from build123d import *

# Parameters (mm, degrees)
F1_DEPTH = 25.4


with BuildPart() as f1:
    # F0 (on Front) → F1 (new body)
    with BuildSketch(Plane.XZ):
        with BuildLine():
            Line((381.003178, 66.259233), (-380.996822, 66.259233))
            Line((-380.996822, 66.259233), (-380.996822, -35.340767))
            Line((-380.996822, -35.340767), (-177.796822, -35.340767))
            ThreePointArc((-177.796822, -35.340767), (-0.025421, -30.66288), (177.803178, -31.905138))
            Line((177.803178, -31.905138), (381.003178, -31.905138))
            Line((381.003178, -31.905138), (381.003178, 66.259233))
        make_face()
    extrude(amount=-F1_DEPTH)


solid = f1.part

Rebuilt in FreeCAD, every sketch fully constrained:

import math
import FreeCAD as App
import Part
import Sketcher
Q = App.Units.Quantity

doc = App.newDocument("Part")
body = doc.addObject("PartDesign::Body", "Body")

# Sketch on XZ plane
sketch1 = doc.addObject("Sketcher::SketchObject", "Sketch")
body.addObject(sketch1)
sketch1.AttachmentSupport = (doc.XZ_Plane, [""])
sketch1.MapMode = "FlatFace"
sketch1.addGeometry(Part.LineSegment(App.Vector(381, 66, 0), App.Vector(-381, 66, 0)), False)
sketch1.addGeometry(Part.LineSegment(App.Vector(-381, 66, 0), App.Vector(-381, -35, 0)), False)
sketch1.addGeometry(Part.LineSegment(App.Vector(-381, -35, 0), App.Vector(-178, -35, 0)), False)
sketch1.addGeometry(Part.ArcOfCircle(Part.Circle(App.Vector(52, -5372, 0), App.Vector(0, 0, 1), 5342), math.radians(88.65), math.radians(92.46)), False)
sketch1.addGeometry(Part.LineSegment(App.Vector(178, -32, 0), App.Vector(381, -32, 0)), False)
sketch1.addGeometry(Part.LineSegment(App.Vector(381, -32, 0), App.Vector(381, 66, 0)), False)
sketch1.addConstraint(Sketcher.Constraint("Coincident", 0, 2, 1, 1))
sketch1.addConstraint(Sketcher.Constraint("Coincident", 1, 2, 2, 1))
sketch1.addConstraint(Sketcher.Constraint("Coincident", 2, 2, 3, 2))
sketch1.addConstraint(Sketcher.Constraint("Coincident", 3, 1, 4, 1))
sketch1.addConstraint(Sketcher.Constraint("Coincident", 4, 2, 5, 1))
sketch1.addConstraint(Sketcher.Constraint("Coincident", 5, 2, 0, 1))
sketch1.addConstraint(Sketcher.Constraint("Horizontal", 0))
sketch1.addConstraint(Sketcher.Constraint("Vertical", 1))
sketch1.addConstraint(Sketcher.Constraint("Horizontal", 2))
sketch1.addConstraint(Sketcher.Constraint("Horizontal", 4))
sketch1.addConstraint(Sketcher.Constraint("Vertical", 5))
sketch1.addConstraint(Sketcher.Constraint("Equal", 2, 4))
sketch1.addConstraint(Sketcher.Constraint("DistanceX", 0, 2, 0, 1, Q("30 in")))
sketch1.addConstraint(Sketcher.Constraint("DistanceX", 2, 1, 2, 2, Q("8 in")))
sketch1.addConstraint(Sketcher.Constraint("DistanceY", 1, 2, 1, 1, Q("4 in")))
sketch1.addConstraint(Sketcher.Constraint("Radius", 3, 5341.605285))
sketch1.addConstraint(Sketcher.Constraint("DistanceY", 5, 1, 5, 2, 98.164371))
sketch1.addConstraint(Sketcher.Constraint("DistanceX", 0, 2, -1, 1, 380.996822))
sketch1.addConstraint(Sketcher.Constraint("DistanceY", 3, 1, -1, 1, 31.905138))
pad1 = doc.addObject("PartDesign::Pad", "Pad")
body.addObject(pad1)
pad1.Profile = sketch1
pad1.Length = Q("1 in")
pad1.Reversed = True

doc.recompute()
